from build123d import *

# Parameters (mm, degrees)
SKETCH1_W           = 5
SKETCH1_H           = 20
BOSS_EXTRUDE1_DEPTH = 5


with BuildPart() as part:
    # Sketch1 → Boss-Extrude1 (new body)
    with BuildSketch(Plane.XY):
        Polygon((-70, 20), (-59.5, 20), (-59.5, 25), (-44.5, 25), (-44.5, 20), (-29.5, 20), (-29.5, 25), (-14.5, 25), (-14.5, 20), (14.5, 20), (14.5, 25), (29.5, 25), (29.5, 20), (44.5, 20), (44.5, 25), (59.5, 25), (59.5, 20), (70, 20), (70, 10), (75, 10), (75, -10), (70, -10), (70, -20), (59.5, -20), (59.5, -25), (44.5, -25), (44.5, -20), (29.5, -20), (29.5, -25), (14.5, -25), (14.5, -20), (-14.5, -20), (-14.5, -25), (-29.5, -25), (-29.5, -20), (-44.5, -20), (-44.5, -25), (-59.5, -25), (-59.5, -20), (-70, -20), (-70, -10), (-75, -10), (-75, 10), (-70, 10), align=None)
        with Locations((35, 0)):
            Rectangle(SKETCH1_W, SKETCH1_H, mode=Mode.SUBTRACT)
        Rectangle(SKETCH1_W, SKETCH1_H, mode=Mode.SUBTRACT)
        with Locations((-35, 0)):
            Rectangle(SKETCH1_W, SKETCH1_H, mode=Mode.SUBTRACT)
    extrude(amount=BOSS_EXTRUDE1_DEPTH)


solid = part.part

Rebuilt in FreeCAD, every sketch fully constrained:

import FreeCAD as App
import Part
import Sketcher

V = App.Vector
Q = App.Units.Quantity

doc = App.newDocument("Part")
body = doc.addObject("PartDesign::Body", "Body")

sketch1 = doc.addObject("Sketcher::SketchObject", "Sketch")
body.addObject(sketch1)
sketch1.AttachmentSupport = (doc.XY_Plane, [""])
sketch1.MapMode = "FlatFace"
sketch1.addGeometry([
    Part.LineSegment(V(-60, 20, 0), V(-70, 20, 0)),
    Part.LineSegment(V(-70, 20, 0), V(-70, 10, 0)),
    Part.LineSegment(V(-70, 10, 0), V(-75, 10, 0)),
    Part.LineSegment(V(-75, 10, 0), V(-75, -10, 0)),
    Part.LineSegment(V(-75, -10, 0), V(-70, -10, 0)),
    Part.LineSegment(V(-70, -10, 0), V(-70, -20, 0)),
    Part.LineSegment(V(-70, -20, 0), V(-60, -20, 0)),
    Part.LineSegment(V(-60, -20, 0), V(-60, -25, 0)),
    Part.LineSegment(V(-60, -25, 0), V(-44, -25, 0)),
    Part.LineSegment(V(-44, -25, 0), V(-44, -20, 0)),
    Part.LineSegment(V(-44, -20, 0), V(-30, -20, 0)),
    Part.LineSegment(V(-30, -20, 0), V(-30, -25, 0)),
    Part.LineSegment(V(-30, -25, 0), V(-14, -25, 0)),
    Part.LineSegment(V(-14, -25, 0), V(-14, -20, 0)),
    Part.LineSegment(V(-14, -20, 0), V(14, -20, 0)),
    Part.LineSegment(V(14, -20, 0), V(14, -25, 0)),
    Part.LineSegment(V(14, -25, 0), V(30, -25, 0)),
    Part.LineSegment(V(30, -25, 0), V(30, -20, 0)),
    Part.LineSegment(V(30, -20, 0), V(44, -20, 0)),
    Part.LineSegment(V(44, -20, 0), V(44, -25, 0)),
    Part.LineSegment(V(44, -25, 0), V(60, -25, 0)),
    Part.LineSegment(V(60, -25, 0), V(60, -20, 0)),
    Part.LineSegment(V(60, -20, 0), V(70, -20, 0)),
    Part.LineSegment(V(70, -20, 0), V(70, -10, 0)),
    Part.LineSegment(V(70, -10, 0), V(75, -10, 0)),
    Part.LineSegment(V(75, -10, 0), V(75, 10, 0)),
    Part.LineSegment(V(75, 10, 0), V(70, 10, 0)),
    Part.LineSegment(V(70, 10, 0), V(70, 20, 0)),
    Part.LineSegment(V(70, 20, 0), V(60, 20, 0)),
    Part.LineSegment(V(60, 20, 0), V(60, 25, 0)),
    Part.LineSegment(V(60, 25, 0), V(44, 25, 0)),
    Part.LineSegment(V(44, 25, 0), V(44, 20, 0)),
    Part.LineSegment(V(44, 20, 0), V(30, 20, 0)),
    Part.LineSegment(V(30, 20, 0), V(30, 25, 0)),
    Part.LineSegment(V(30, 25, 0), V(14, 25, 0)),
    Part.LineSegment(V(14, 25, 0), V(14, 20, 0)),
    Part.LineSegment(V(14, 20, 0), V(-14, 20, 0)),
    Part.LineSegment(V(-14, 20, 0), V(-14, 25, 0)),
    Part.LineSegment(V(-14, 25, 0), V(-30, 25, 0)),
    Part.LineSegment(V(-30, 25, 0), V(-30, 20, 0)),
    Part.LineSegment(V(-30, 20, 0), V(-44, 20, 0)),
    Part.LineSegment(V(-44, 20, 0), V(-44, 25, 0)),
    Part.LineSegment(V(-44, 25, 0), V(-60, 25, 0)),
    Part.LineSegment(V(-60, 25, 0), V(-60, 20, 0)),
    Part.LineSegment(V(32, -10, 0), V(32, 10, 0)),
    Part.LineSegment(V(32, 10, 0), V(38, 10, 0)),
    Part.LineSegment(V(38, 10, 0), V(38, -10, 0)),
    Part.LineSegment(V(38, -10, 0), V(32, -10, 0)),
    Part.LineSegment(V(-2, -10, 0), V(-2, 10, 0)),
    Part.LineSegment(V(-2, 10, 0), V(2, 10, 0)),
    Part.LineSegment(V(2, 10, 0), V(2, -10, 0)),
    Part.LineSegment(V(2, -10, 0), V(-2, -10, 0)),
    Part.LineSegment(V(-38, -10, 0), V(-38, 10, 0)),
    Part.LineSegment(V(-38, 10, 0), V(-32, 10, 0)),
    Part.LineSegment(V(-32, 10, 0), V(-32, -10, 0)),
    Part.LineSegment(V(-32, -10, 0), V(-38, -10, 0)),
], False)
sketch1.addConstraint([
    Sketcher.Constraint("Coincident", 0, 2, 1, 1),
    Sketcher.Constraint("Coincident", 1, 2, 2, 1),
    Sketcher.Constraint("Coincident", 2, 2, 3, 1),
    Sketcher.Constraint("Coincident", 3, 2, 4, 1),
    Sketcher.Constraint("Coincident", 4, 2, 5, 1),
    Sketcher.Constraint("Coincident", 5, 2, 6, 1),
    Sketcher.Constraint("Coincident", 6, 2, 7, 1),
    Sketcher.Constraint("Coincident", 7, 2, 8, 1),
    Sketcher.Constraint("Coincident", 8, 2, 9, 1),
    Sketcher.Constraint("Coincident", 9, 2, 10, 1),
    Sketcher.Constraint("Coincident", 10, 2, 11, 1),
    Sketcher.Constraint("Coincident", 11, 2, 12, 1),
    Sketcher.Constraint("Coincident", 12, 2, 13, 1),
    Sketcher.Constraint("Coincident", 13, 2, 14, 1),
    Sketcher.Constraint("Coincident", 14, 2, 15, 1),
    Sketcher.Constraint("Coincident", 15, 2, 16, 1),
    Sketcher.Constraint("Coincident", 16, 2, 17, 1),
    Sketcher.Constraint("Coincident", 17, 2, 18, 1),
    Sketcher.Constraint("Coincident", 18, 2, 19, 1),
    Sketcher.Constraint("Coincident", 19, 2, 20, 1),
    Sketcher.Constraint("Coincident", 20, 2, 21, 1),
    Sketcher.Constraint("Coincident", 21, 2, 22, 1),
    Sketcher.Constraint("Coincident", 22, 2, 23, 1),
    Sketcher.Constraint("Coincident", 23, 2, 24, 1),
    Sketcher.Constraint("Coincident", 24, 2, 25, 1),
    Sketcher.Constraint("Coincident", 25, 2, 26, 1),
    Sketcher.Constraint("Coincident", 26, 2, 27, 1),
    Sketcher.Constraint("Coincident", 27, 2, 28, 1),
    Sketcher.Constraint("Coincident", 28, 2, 29, 1),
    Sketcher.Constraint("Coincident", 29, 2, 30, 1),
    Sketcher.Constraint("Coincident", 30, 2, 31, 1),
    Sketcher.Constraint("Coincident", 31, 2, 32, 1),
    Sketcher.Constraint("Coincident", 32, 2, 33, 1),
    Sketcher.Constraint("Coincident", 33, 2, 34, 1),
    Sketcher.Constraint("Coincident", 34, 2, 35, 1),
    Sketcher.Constraint("Coincident", 35, 2, 36, 1),
    Sketcher.Constraint("Coincident", 36, 2, 37, 1),
    Sketcher.Constraint("Coincident", 37, 2, 38, 1),
    Sketcher.Constraint("Coincident", 38, 2, 39, 1),
    Sketcher.Constraint("Coincident", 39, 2, 40, 1),
    Sketcher.Constraint("Coincident", 40, 2, 41, 1),
    Sketcher.Constraint("Coincident", 41, 2, 42, 1),
    Sketcher.Constraint("Coincident", 42, 2, 43, 1),
    Sketcher.Constraint("Coincident", 43, 2, 0, 1),
    Sketcher.Constraint("Coincident", 44, 2, 45, 1),
    Sketcher.Constraint("Coincident", 45, 2, 46, 1),
    Sketcher.Constraint("Coincident", 46, 2, 47, 1),
    Sketcher.Constraint("Coincident", 47, 2, 44, 1),
    Sketcher.Constraint("Coincident", 48, 2, 49, 1),
    Sketcher.Constraint("Coincident", 49, 2, 50, 1),
    Sketcher.Constraint("Coincident", 50, 2, 51, 1),
    Sketcher.Constraint("Coincident", 51, 2, 48, 1),
    Sketcher.Constraint("Coincident", 52, 2, 53, 1),
    Sketcher.Constraint("Coincident", 53, 2, 54, 1),
    Sketcher.Constraint("Coincident", 54, 2, 55, 1),
    Sketcher.Constraint("Coincident", 55, 2, 52, 1),
    Sketcher.Constraint("Horizontal", 0),
    Sketcher.Constraint("Vertical", 1),
    Sketcher.Constraint("Horizontal", 2),
    Sketcher.Constraint("Vertical", 3),
    Sketcher.Constraint("Horizontal", 4),
    Sketcher.Constraint("Vertical", 5),
    Sketcher.Constraint("Horizontal", 6),
    Sketcher.Constraint("Vertical", 7),
    Sketcher.Constraint("Horizontal", 8),
    Sketcher.Constraint("Vertical", 9),
    Sketcher.Constraint("Horizontal", 10),
    Sketcher.Constraint("Vertical", 11),
    Sketcher.Constraint("Horizontal", 12),
    Sketcher.Constraint("Vertical", 13),
    Sketcher.Constraint("Horizontal", 14),
    Sketcher.Constraint("Vertical", 15),
    Sketcher.Constraint("Horizontal", 16),
    Sketcher.Constraint("Vertical", 17),
    Sketcher.Constraint("Horizontal", 18),
    Sketcher.Constraint("Vertical", 19),
    Sketcher.Constraint("Horizontal", 20),
    Sketcher.Constraint("Vertical", 21),
    Sketcher.Constraint("Horizontal", 22),
    Sketcher.Constraint("Vertical", 23),
    Sketcher.Constraint("Horizontal", 24),
    Sketcher.Constraint("Vertical", 25),
    Sketcher.Constraint("Horizontal", 26),
    Sketcher.Constraint("Vertical", 27),
    Sketcher.Constraint("Horizontal", 28),
    Sketcher.Constraint("Vertical", 29),
    Sketcher.Constraint("Horizontal", 30),
    Sketcher.Constraint("Vertical", 31),
    Sketcher.Constraint("Horizontal", 32),
    Sketcher.Constraint("Vertical", 33),
    Sketcher.Constraint("Horizontal", 34),
    Sketcher.Constraint("Vertical", 35),
    Sketcher.Constraint("Horizontal", 36),
    Sketcher.Constraint("Vertical", 37),
    Sketcher.Constraint("Horizontal", 38),
    Sketcher.Constraint("Vertical", 39),
    Sketcher.Constraint("Horizontal", 40),
    Sketcher.Constraint("Vertical", 41),
    Sketcher.Constraint("Horizontal", 42),
    Sketcher.Constraint("Vertical", 43),
    Sketcher.Constraint("Vertical", 44),
    Sketcher.Constraint("Horizontal", 45),
    Sketcher.Constraint("Vertical", 46),
    Sketcher.Constraint("Horizontal", 47),
    Sketcher.Constraint("Vertical", 48),
    Sketcher.Constraint("Horizontal", 49),
    Sketcher.Constraint("Vertical", 50),
    Sketcher.Constraint("Horizontal", 51),
    Sketcher.Constraint("Vertical", 52),
    Sketcher.Constraint("Horizontal", 53),
    Sketcher.Constraint("Vertical", 54),
    Sketcher.Constraint("Horizontal", 55),
    Sketcher.Constraint("Symmetric", 0, 2, 22, 2, -1, 1),
    Sketcher.Constraint("Symmetric", 2, 2, 24, 2, -1, 1),
    Sketcher.Constraint("Symmetric", 4, 2, 26, 2, -1, 1),
    Sketcher.Constraint("Symmetric", 6, 2, 28, 2, -1, 1),
    Sketcher.Constraint("Symmetric", 8, 2, 30, 2, -1, 1),
    Sketcher.Constraint("Symmetric", 10, 2, 32, 2, -1, 1),
    Sketcher.Constraint("Symmetric", 12, 2, 34, 2, -1, 1),
    Sketcher.Constraint("Symmetric", 14, 2, 36, 2, -1, 1),
    Sketcher.Constraint("Symmetric", 16, 2, 38, 2, -1, 1),
    Sketcher.Constraint("Symmetric", 18, 2, 40, 2, -1, 1),
    Sketcher.Constraint("Symmetric", 20, 2, 42, 2, -1, 1),
    Sketcher.Constraint("Symmetric", 48, 2, 50, 2, -1, 1),
    Sketcher.Constraint("Symmetric", 46, 2, 52, 2, -1, 1),
    Sketcher.Constraint("Symmetric", 44, 2, 54, 2, -1, 1),
    Sketcher.Constraint("Symmetric", 12, 2, 15, 2, -2),
    Sketcher.Constraint("Symmetric", 10, 2, 17, 2, -2),
    Sketcher.Constraint("Symmetric", 8, 2, 19, 2, -2),
    Sketcher.Constraint("Symmetric", 6, 2, 21, 2, -2),
    Sketcher.Constraint("Symmetric", 4, 2, 23, 2, -2),
    Sketcher.Constraint("Horizontal", 6, 2, 9, 2),
    Sketcher.Constraint("Horizontal", 8, 2, 11, 2),
    Sketcher.Constraint("Horizontal", 10, 2, 13, 2),
    Sketcher.Constraint("Horizontal", 26, 2, 44, 2),
    Sketcher.Constraint("Horizontal", 24, 2, 46, 2),
    Sketcher.Constraint("Horizontal", 45, 2, 48, 2),
    Sketcher.Constraint("Equal", 8, 10),
    Sketcher.Constraint("Equal", 10, 12),
    Sketcher.Constraint("Equal", 26, 45),
    Sketcher.Constraint("Equal", 47, 49),
    Sketcher.Constraint("Equal", 55, 7),
    Sketcher.Constraint("DistanceX", 2, 2, 2, 1, Q("5 mm")),
    Sketcher.Constraint("DistanceX", 8, 1, 8, 2, Q("15 mm")),
    Sketcher.Constraint("DistanceX", 14, 1, 14, 2, Q("29 mm")),
    Sketcher.Constraint("DistanceY", 1, 2, 1, 1, Q("10 mm")),
    Sketcher.Constraint("DistanceY", 3, 2, 3, 1, Q("20 mm")),
    Sketcher.Constraint("DistanceX", 0, 2, 0, 1, Q("10.5 mm")),
    Sketcher.Constraint("DistanceX", 32, 2, 44, 2, Q("3 mm")),
])
pad1 = doc.addObject("PartDesign::Pad", "Pad")
body.addObject(pad1)
pad1.Profile = sketch1
pad1.Length = 5

doc.recompute()
